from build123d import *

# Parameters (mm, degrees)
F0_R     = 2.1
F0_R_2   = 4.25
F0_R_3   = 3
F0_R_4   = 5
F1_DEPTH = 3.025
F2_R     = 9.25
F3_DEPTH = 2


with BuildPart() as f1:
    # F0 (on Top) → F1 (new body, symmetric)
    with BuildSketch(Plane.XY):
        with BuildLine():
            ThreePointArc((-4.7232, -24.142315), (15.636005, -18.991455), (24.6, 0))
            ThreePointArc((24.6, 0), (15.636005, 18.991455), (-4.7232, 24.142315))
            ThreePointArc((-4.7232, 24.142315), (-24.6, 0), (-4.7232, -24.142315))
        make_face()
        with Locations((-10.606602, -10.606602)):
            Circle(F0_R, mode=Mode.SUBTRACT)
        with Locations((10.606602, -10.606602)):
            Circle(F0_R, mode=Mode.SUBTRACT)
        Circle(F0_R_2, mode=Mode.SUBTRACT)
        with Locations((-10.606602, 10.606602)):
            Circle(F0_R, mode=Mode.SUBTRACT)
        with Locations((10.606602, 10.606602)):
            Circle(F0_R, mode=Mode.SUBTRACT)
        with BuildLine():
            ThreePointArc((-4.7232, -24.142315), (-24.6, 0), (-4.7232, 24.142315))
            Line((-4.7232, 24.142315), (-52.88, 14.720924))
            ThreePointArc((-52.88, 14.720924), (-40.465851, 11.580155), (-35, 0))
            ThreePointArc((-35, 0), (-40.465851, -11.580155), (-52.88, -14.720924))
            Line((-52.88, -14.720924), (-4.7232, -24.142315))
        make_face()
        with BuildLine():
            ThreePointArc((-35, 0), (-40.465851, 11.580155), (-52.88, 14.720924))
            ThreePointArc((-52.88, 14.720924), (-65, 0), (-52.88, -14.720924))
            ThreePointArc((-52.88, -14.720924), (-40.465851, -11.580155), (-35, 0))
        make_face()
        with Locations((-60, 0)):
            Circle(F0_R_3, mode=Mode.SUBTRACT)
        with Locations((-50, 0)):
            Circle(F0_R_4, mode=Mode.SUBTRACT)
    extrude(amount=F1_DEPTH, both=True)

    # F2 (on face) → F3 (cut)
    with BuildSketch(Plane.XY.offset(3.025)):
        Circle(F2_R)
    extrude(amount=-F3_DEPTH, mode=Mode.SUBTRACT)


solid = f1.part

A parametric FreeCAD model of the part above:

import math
import FreeCAD as App
import Part
import Sketcher
Q = App.Units.Quantity

doc = App.newDocument("Part")
body = doc.addObject("PartDesign::Body", "Body")

sketch1 = doc.addObject("Sketcher::SketchObject", "Sketch")
body.addObject(sketch1)
sketch1.AttachmentSupport = (doc.XY_Plane, [""])
sketch1.MapMode = "FlatFace"
sketch1.addGeometry(Part.ArcOfCircle(Part.Circle(App.Vector(0, 0, 0), App.Vector(0, 0, 1), 24.6), math.radians(-101), math.radians(0)), False)
sketch1.addGeometry(Part.ArcOfCircle(Part.Circle(App.Vector(0, 0, 0), App.Vector(0, 0, 1), 24.6), math.radians(0), math.radians(101)), False)
sketch1.addGeometry(Part.LineSegment(App.Vector(-4.7, 24.1, 0), App.Vector(-52.9, 14.7, 0)), False)
sketch1.addGeometry(Part.ArcOfCircle(Part.Circle(App.Vector(-50, 0, 0), App.Vector(0, 0, 1), 15), math.radians(101), math.radians(259)), False)
sketch1.addGeometry(Part.LineSegment(App.Vector(-52.9, -14.7, 0), App.Vector(-4.7, -24.1, 0)), False)
sketch1.addGeometry(Part.Circle(App.Vector(-10.6, -10.6, 0), App.Vector(0, 0, 1), 2.1), False)
sketch1.addGeometry(Part.Circle(App.Vector(10.6, -10.6, 0), App.Vector(0, 0, 1), 2.1), False)
sketch1.addGeometry(Part.Circle(App.Vector(-60, 0, 0), App.Vector(0, 0, 1), 3), False)
sketch1.addGeometry(Part.Circle(App.Vector(-50, 0, 0), App.Vector(0, 0, 1), 5), False)
sketch1.addGeometry(Part.Circle(App.Vector(0, 0, 0), App.Vector(0, 0, 1), 4.2), False)
sketch1.addGeometry(Part.Circle(App.Vector(-10.6, 10.6, 0), App.Vector(0, 0, 1), 2.1), False)
sketch1.addGeometry(Part.Circle(App.Vector(10.6, 10.6, 0), App.Vector(0, 0, 1), 2.1), False)
sketch1.addConstraint(Sketcher.Constraint("Tangent", 0, 2, 1, 1))
sketch1.addConstraint(Sketcher.Constraint("Tangent", 1, 2, 2, 1))
sketch1.addConstraint(Sketcher.Constraint("Tangent", 2, 2, 3, 1))
sketch1.addConstraint(Sketcher.Constraint("Tangent", 3, 2, 4, 1))
sketch1.addConstraint(Sketcher.Constraint("Tangent", 4, 2, 0, 1))
sketch1.addConstraint(Sketcher.Constraint("Coincident", 0, 3, -1, 1))
sketch1.addConstraint(Sketcher.Constraint("Coincident", 9, 3, -1, 1))
sketch1.addConstraint(Sketcher.Constraint("Coincident", 8, 3, 3, 3))
sketch1.addConstraint(Sketcher.Constraint("Equal", 0, 1))
sketch1.addConstraint(Sketcher.Constraint("Equal", 5, 6))
sketch1.addConstraint(Sketcher.Constraint("Equal", 6, 10))
sketch1.addConstraint(Sketcher.Constraint("Equal", 10, 11))
sketch1.addConstraint(Sketcher.Constraint("Symmetric", 6, 3, 10, 3, -1, 1))
sketch1.addConstraint(Sketcher.Constraint("Symmetric", 5, 3, 11, 3, -1, 1))
sketch1.addConstraint(Sketcher.Constraint("Symmetric", 5, 3, 6, 3, -2))
sketch1.addConstraint(Sketcher.Constraint("PointOnObject", 3, 3, -1))
sketch1.addConstraint(Sketcher.Constraint("PointOnObject", 7, 3, -1))
sketch1.addConstraint(Sketcher.Constraint("PointOnObject", 0, 2, -1))
sketch1.addConstraint(Sketcher.Constraint("Diameter", 7, Q("6 mm")))
sketch1.addConstraint(Sketcher.Constraint("Diameter", 8, Q("10 mm")))
sketch1.addConstraint(Sketcher.Constraint("Radius", 3, Q("15 mm")))
sketch1.addConstraint(Sketcher.Constraint("Diameter", 5, Q("4.2 mm")))
sketch1.addConstraint(Sketcher.Constraint("Diameter", 9, Q("8.5 mm")))
sketch1.addConstraint(Sketcher.Constraint("Radius", 0, Q("24.599999 mm")))
sketch1.addConstraint(Sketcher.Constraint("DistanceX", 3, 3, -1, 1, Q("50 mm")))
sketch1.addConstraint(Sketcher.Constraint("DistanceX", 7, 3, -1, 1, Q("60 mm")))
sketch1.addConstraint(Sketcher.Constraint("DistanceY", 5, 3, 0, 3, Q("10.606601 mm")))
sketch1.addConstraint(Sketcher.Constraint("DistanceX", 0, 3, 6, 3, Q("10.606601 mm")))
pad1 = doc.addObject("PartDesign::Pad", "Pad")
body.addObject(pad1)
pad1.Profile = sketch1
pad1.Length = 6.05
pad1.Midplane = True

sketch2 = doc.addObject("Sketcher::SketchObject", "Sketch001")
body.addObject(sketch2)
sketch2.AttachmentSupport = (doc.XY_Plane, [""])
sketch2.MapMode = "FlatFace"
sketch2.AttachmentOffset = App.Placement(App.Vector(0, 0, 3.025), App.Rotation())
sketch2.addGeometry(Part.Circle(App.Vector(0, 0, 0), App.Vector(0, 0, 1), 9), False)
sketch2.addConstraint(Sketcher.Constraint("Coincident", 0, 3, -1, 1))
sketch2.addConstraint(Sketcher.Constraint("Diameter", 0, Q("18.5 mm")))
pocket1 = doc.addObject("PartDesign::Pocket", "Pocket")
body.addObject(pocket1)
pocket1.Profile = sketch2
pocket1.Length = 2

doc.recompute()
